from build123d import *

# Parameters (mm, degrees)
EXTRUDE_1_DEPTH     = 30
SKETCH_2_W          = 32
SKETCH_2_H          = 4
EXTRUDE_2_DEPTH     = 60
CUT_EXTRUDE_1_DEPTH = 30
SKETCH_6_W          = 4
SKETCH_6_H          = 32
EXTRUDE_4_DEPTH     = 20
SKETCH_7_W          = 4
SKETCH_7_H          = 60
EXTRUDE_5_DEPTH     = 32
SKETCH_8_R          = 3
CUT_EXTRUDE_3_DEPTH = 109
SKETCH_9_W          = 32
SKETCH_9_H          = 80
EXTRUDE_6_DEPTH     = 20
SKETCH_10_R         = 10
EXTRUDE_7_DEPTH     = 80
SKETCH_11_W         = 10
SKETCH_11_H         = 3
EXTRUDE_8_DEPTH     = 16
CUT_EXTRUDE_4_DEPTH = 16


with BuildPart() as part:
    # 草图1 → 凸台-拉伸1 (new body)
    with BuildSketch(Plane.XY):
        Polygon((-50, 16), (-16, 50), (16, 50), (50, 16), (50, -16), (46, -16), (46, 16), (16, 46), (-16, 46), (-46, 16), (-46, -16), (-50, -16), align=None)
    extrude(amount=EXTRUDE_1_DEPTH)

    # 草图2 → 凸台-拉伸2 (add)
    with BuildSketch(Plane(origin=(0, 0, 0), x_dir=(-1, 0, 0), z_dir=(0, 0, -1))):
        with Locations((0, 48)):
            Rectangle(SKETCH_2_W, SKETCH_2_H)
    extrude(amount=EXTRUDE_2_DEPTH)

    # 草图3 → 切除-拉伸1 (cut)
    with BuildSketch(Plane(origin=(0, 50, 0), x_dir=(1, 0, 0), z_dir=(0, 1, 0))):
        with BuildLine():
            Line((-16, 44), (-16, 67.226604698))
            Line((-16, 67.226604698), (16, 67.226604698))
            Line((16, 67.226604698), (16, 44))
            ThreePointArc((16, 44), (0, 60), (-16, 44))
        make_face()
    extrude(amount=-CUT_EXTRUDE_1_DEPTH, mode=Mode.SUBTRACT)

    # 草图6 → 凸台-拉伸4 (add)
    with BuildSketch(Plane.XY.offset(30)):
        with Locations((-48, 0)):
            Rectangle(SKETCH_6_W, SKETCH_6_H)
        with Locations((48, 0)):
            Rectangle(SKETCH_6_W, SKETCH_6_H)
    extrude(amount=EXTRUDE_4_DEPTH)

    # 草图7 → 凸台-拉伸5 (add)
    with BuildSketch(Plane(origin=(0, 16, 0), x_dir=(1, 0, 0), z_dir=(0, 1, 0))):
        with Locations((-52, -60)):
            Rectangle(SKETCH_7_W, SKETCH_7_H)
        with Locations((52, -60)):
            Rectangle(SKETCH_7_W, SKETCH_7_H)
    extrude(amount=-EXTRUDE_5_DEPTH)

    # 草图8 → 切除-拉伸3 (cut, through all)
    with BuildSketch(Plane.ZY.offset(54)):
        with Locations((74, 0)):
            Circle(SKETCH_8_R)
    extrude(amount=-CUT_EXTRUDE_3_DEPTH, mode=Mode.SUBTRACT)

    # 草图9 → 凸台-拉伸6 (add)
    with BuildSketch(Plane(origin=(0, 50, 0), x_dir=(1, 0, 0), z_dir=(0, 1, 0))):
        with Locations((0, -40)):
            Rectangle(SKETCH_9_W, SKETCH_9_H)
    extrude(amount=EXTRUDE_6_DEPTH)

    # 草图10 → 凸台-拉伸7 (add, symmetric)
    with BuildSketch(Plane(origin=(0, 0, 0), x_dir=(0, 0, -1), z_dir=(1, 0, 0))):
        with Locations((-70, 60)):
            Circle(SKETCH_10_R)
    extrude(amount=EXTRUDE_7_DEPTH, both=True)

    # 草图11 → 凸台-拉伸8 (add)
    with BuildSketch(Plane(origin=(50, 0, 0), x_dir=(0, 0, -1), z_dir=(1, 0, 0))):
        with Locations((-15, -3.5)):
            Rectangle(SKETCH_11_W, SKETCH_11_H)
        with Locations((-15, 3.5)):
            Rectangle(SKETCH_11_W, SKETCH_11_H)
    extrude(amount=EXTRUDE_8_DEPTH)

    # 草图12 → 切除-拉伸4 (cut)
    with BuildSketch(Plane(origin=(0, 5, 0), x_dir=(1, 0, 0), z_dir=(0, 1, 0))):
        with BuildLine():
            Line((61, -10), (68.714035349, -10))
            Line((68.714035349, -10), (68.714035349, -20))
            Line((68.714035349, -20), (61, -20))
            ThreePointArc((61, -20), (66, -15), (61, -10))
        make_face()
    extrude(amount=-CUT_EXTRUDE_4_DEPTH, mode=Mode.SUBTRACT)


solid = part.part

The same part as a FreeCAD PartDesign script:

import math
import FreeCAD as App
import Part
import Sketcher
from FreeCAD import Vector
Q = App.Units.Quantity

doc = App.newDocument("Part")
params = doc.addObject("Spreadsheet::Sheet", "Params")
for row, (alias, value) in enumerate([
    ("sketch1_width", "4 mm"),
    ("sketch1_width2", "32 mm"),
    ("pad1_length", "30 mm"),
    ("sketch2_width", "32 mm"),
    ("sketch2_height", "4 mm"),
    ("pad2_length", "60 mm"),
    ("sketch3_radius", "16 mm"),
    ("pocket1_length", "30 mm"),
    ("sketch4_width", "4 mm"),
    ("sketch4_height", "32 mm"),
    ("pad3_length", "20 mm"),
    ("sketch5_width", "4 mm"),
    ("sketch5_height", "60 mm"),
    ("pad4_length", "32 mm"),
    ("sketch6_diameter", "6 mm"),
    ("sketch7_width", "32 mm"),
    ("sketch7_height", "80 mm"),
    ("pad5_length", "20 mm"),
    ("sketch8_diameter", "20 mm"),
    ("pad6_length", "160 mm"),
    ("sketch9_width", "3 mm"),
    ("sketch9_height", "10 mm"),
    ("pad7_length", "16 mm"),
    ("sketch10_radius", "5 mm"),
    ("pocket3_length", "16 mm"),
], start=1):
    params.set(f"A{row}", alias)
    params.set(f"B{row}", "=" + value)
    params.setAlias(f"B{row}", alias)

body = doc.addObject("PartDesign::Body", "Body")

sketch1 = body.newObject("Sketcher::SketchObject", "Sketch")
sketch1.AttachmentSupport = (doc.getObject("XY_Plane"), [""])
sketch1.MapMode = "FlatFace"
sketch1.addGeometry([
    Part.LineSegment(Vector(-16, 50, 0), Vector(-50, 16, 0)),
    Part.LineSegment(Vector(-50, 16, 0), Vector(-50, -16, 0)),
    Part.LineSegment(Vector(-50, -16, 0), Vector(-46, -16, 0)),
    Part.LineSegment(Vector(-46, -16, 0), Vector(-46, 16, 0)),
    Part.LineSegment(Vector(-46, 16, 0), Vector(-16, 46, 0)),
    Part.LineSegment(Vector(-16, 46, 0), Vector(16, 46, 0)),
    Part.LineSegment(Vector(16, 46, 0), Vector(46, 16, 0)),
    Part.LineSegment(Vector(46, 16, 0), Vector(46, -16, 0)),
    Part.LineSegment(Vector(46, -16, 0), Vector(50, -16, 0)),
    Part.LineSegment(Vector(50, -16, 0), Vector(50, 16, 0)),
    Part.LineSegment(Vector(50, 16, 0), Vector(16, 50, 0)),
    Part.LineSegment(Vector(16, 50, 0), Vector(-16, 50, 0)),
], False)
sketch1.addConstraint([
    Sketcher.Constraint("Coincident", 0, 2, 1, 1),
    Sketcher.Constraint("Coincident", 1, 2, 2, 1),
    Sketcher.Constraint("Coincident", 2, 2, 3, 1),
    Sketcher.Constraint("Coincident", 3, 2, 4, 1),
    Sketcher.Constraint("Coincident", 4, 2, 5, 1),
    Sketcher.Constraint("Coincident", 5, 2, 6, 1),
    Sketcher.Constraint("Coincident", 6, 2, 7, 1),
    Sketcher.Constraint("Coincident", 7, 2, 8, 1),
    Sketcher.Constraint("Coincident", 8, 2, 9, 1),
    Sketcher.Constraint("Coincident", 9, 2, 10, 1),
    Sketcher.Constraint("Coincident", 10, 2, 11, 1),
    Sketcher.Constraint("Coincident", 11, 2, 0, 1),
    Sketcher.Constraint("Vertical", 1),
    Sketcher.Constraint("Horizontal", 2),
    Sketcher.Constraint("Vertical", 3),
    Sketcher.Constraint("Horizontal", 5),
    Sketcher.Constraint("Vertical", 7),
    Sketcher.Constraint("Horizontal", 8),
    Sketcher.Constraint("Vertical", 9),
    Sketcher.Constraint("Horizontal", 11),
    Sketcher.Constraint("Symmetric", 2, 2, 6, 2, -1, 1),
    Sketcher.Constraint("Symmetric", 0, 2, 8, 2, -1, 1),
    Sketcher.Constraint("Parallel", 0, 4),
    Sketcher.Constraint("Perpendicular", 4, 6),
    Sketcher.Constraint("Parallel", 6, 10),
    Sketcher.Constraint("Horizontal", 0, 2, 3, 2),
    Sketcher.Constraint("Horizontal", 3, 2, 6, 2),
    Sketcher.Constraint("Horizontal", 6, 2, 9, 2),
    Sketcher.Constraint("Vertical", 5, 2, 10, 2),
    Sketcher.Constraint("Vertical", 4, 2, 11, 2),
    Sketcher.Constraint("Equal", 11, 1),
    Sketcher.Constraint("DistanceX", 2, 1, 2, 2, Q("4 mm")),
    Sketcher.Constraint("DistanceX", 5, 1, 5, 2, Q("32 mm")),
    Sketcher.Constraint("DistanceX", 0, 2, -1, 1, Q("50 mm")),
])
sketch1.setExpression("Constraints[31]", "Params.sketch1_width")
sketch1.setExpression("Constraints[32]", "Params.sketch1_width2")
pad1 = body.newObject("PartDesign::Pad", "Pad")
pad1.Profile = sketch1
pad1.setExpression("Length", "Params.pad1_length")

sketch2 = body.newObject("Sketcher::SketchObject", "Sketch001")
sketch2.AttachmentSupport = (doc.getObject("XY_Plane"), [""])
sketch2.MapMode = "FlatFace"
sketch2.addGeometry([
    Part.LineSegment(Vector(16, 50, 0), Vector(16, 46, 0)),
    Part.LineSegment(Vector(16, 46, 0), Vector(-16, 46, 0)),
    Part.LineSegment(Vector(-16, 46, 0), Vector(-16, 50, 0)),
    Part.LineSegment(Vector(-16, 50, 0), Vector(16, 50, 0)),
], False)
sketch2.addConstraint([
    Sketcher.Constraint("Coincident", 0, 2, 1, 1),
    Sketcher.Constraint("Coincident", 1, 2, 2, 1),
    Sketcher.Constraint("Coincident", 2, 2, 3, 1),
    Sketcher.Constraint("Coincident", 3, 2, 0, 1),
    Sketcher.Constraint("Vertical", 0),
    Sketcher.Constraint("Horizontal", 1),
    Sketcher.Constraint("Vertical", 2),
    Sketcher.Constraint("Horizontal", 3),
    Sketcher.Constraint("DistanceX", 1, 2, 1, 1, Q("32 mm")),
    Sketcher.Constraint("DistanceY", 0, 2, 0, 1, Q("4 mm")),
    Sketcher.Constraint("DistanceX", -1, 1, 0, 2, Q("16 mm")),
    Sketcher.Constraint("DistanceY", -1, 1, 0, 2, Q("46 mm")),
])
sketch2.setExpression("Constraints[8]", "Params.sketch2_width")
sketch2.setExpression("Constraints[9]", "Params.sketch2_height")
pad2 = body.newObject("PartDesign::Pad", "Pad001")
pad2.Profile = sketch2
pad2.setExpression("Length", "Params.pad2_length")
pad2.Reversed = True

sketch3 = body.newObject("Sketcher::SketchObject", "Sketch002")
sketch3.AttachmentSupport = (doc.getObject("XZ_Plane"), [""])
sketch3.MapMode = "FlatFace"
sketch3.AttachmentOffset = App.Placement(Vector(0, 0, -50), App.Rotation())
sketch3.addGeometry([
    Part.LineSegment(Vector(-16, -67, 0), Vector(-16, -44, 0)),
    Part.ArcOfCircle(Part.Circle(Vector(0, -44, 0), Vector(0, 0, 1), 16), math.radians(180), math.radians(360)),
    Part.LineSegment(Vector(16, -44, 0), Vector(16, -67, 0)),
    Part.LineSegment(Vector(16, -67, 0), Vector(-16, -67, 0)),
], False)
sketch3.addConstraint([
    Sketcher.Constraint("Tangent", 0, 2, 1, 1),
    Sketcher.Constraint("Tangent", 1, 2, 2, 1),
    Sketcher.Constraint("Coincident", 2, 2, 3, 1),
    Sketcher.Constraint("Coincident", 3, 2, 0, 1),
    Sketcher.Constraint("Vertical", 0),
    Sketcher.Constraint("Vertical", 2),
    Sketcher.Constraint("Horizontal", 3),
    Sketcher.Constraint("PointOnObject", 1, 3, -2),
    Sketcher.Constraint("Radius", 1, Q("16 mm")),
    Sketcher.Constraint("DistanceY", 1, 3, -1, 1, Q("44 mm")),
    Sketcher.Constraint("DistanceY", 0, 1, 0, 2, Q("23.226605 mm")),
])
sketch3.setExpression("Constraints[8]", "Params.sketch3_radius")
pocket1 = body.newObject("PartDesign::Pocket", "Pocket")
pocket1.Profile = sketch3
pocket1.setExpression("Length", "Params.pocket1_length")
pocket1.Reversed = True

sketch4 = body.newObject("Sketcher::SketchObject", "Sketch003")
sketch4.AttachmentSupport = (doc.getObject("XY_Plane"), [""])
sketch4.MapMode = "FlatFace"
sketch4.AttachmentOffset = App.Placement(Vector(0, 0, 30), App.Rotation())
sketch4.addGeometry([
    Part.LineSegment(Vector(-50, 16, 0), Vector(-50, -16, 0)),
    Part.LineSegment(Vector(-50, -16, 0), Vector(-46, -16, 0)),
    Part.LineSegment(Vector(-46, -16, 0), Vector(-46, 16, 0)),
    Part.LineSegment(Vector(-46, 16, 0), Vector(-50, 16, 0)),
    Part.LineSegment(Vector(46, 16, 0), Vector(46, -16, 0)),
    Part.LineSegment(Vector(46, -16, 0), Vector(50, -16, 0)),
    Part.LineSegment(Vector(50, -16, 0), Vector(50, 16, 0)),
    Part.LineSegment(Vector(50, 16, 0), Vector(46, 16, 0)),
], False)
sketch4.addConstraint([
    Sketcher.Constraint("Coincident", 0, 2, 1, 1),
    Sketcher.Constraint("Coincident", 1, 2, 2, 1),
    Sketcher.Constraint("Coincident", 2, 2, 3, 1),
    Sketcher.Constraint("Coincident", 3, 2, 0, 1),
    Sketcher.Constraint("Coincident", 4, 2, 5, 1),
    Sketcher.Constraint("Coincident", 5, 2, 6, 1),
    Sketcher.Constraint("Coincident", 6, 2, 7, 1),
    Sketcher.Constraint("Coincident", 7, 2, 4, 1),
    Sketcher.Constraint("Vertical", 0),
    Sketcher.Constraint("Horizontal", 1),
    Sketcher.Constraint("Vertical", 2),
    Sketcher.Constraint("Horizontal", 3),
    Sketcher.Constraint("Vertical", 4),
    Sketcher.Constraint("Horizontal", 5),
    Sketcher.Constraint("Vertical", 6),
    Sketcher.Constraint("Horizontal", 7),
    Sketcher.Constraint("Symmetric", 2, 2, 4, 2, -1, 1),
    Sketcher.Constraint("Symmetric", 0, 2, 6, 2, -1, 1),
    Sketcher.Constraint("Horizontal", 1, 2, 4, 2),
    Sketcher.Constraint("DistanceX", 1, 1, 1, 2, Q("4 mm")),
    Sketcher.Constraint("DistanceY", 0, 2, 0, 1, Q("32 mm")),
    Sketcher.Constraint("DistanceX", 0, 2, -1, 1, Q("50 mm")),
])
sketch4.setExpression("Constraints[19]", "Params.sketch4_width")
sketch4.setExpression("Constraints[20]", "Params.sketch4_height")
pad3 = body.newObject("PartDesign::Pad", "Pad002")
pad3.Profile = sketch4
pad3.setExpression("Length", "Params.pad3_length")

sketch5 = body.newObject("Sketcher::SketchObject", "Sketch004")
sketch5.AttachmentSupport = (doc.getObject("XZ_Plane"), [""])
sketch5.MapMode = "FlatFace"
sketch5.AttachmentOffset = App.Placement(Vector(0, 0, -16), App.Rotation())
sketch5.addGeometry([
    Part.LineSegment(Vector(-54, 30, 0), Vector(-54, 90, 0)),
    Part.LineSegment(Vector(-54, 90, 0), Vector(-50, 90, 0)),
    Part.LineSegment(Vector(-50, 90, 0), Vector(-50, 30, 0)),
    Part.LineSegment(Vector(-50, 30, 0), Vector(-54, 30, 0)),
    Part.LineSegment(Vector(50, 30, 0), Vector(50, 90, 0)),
    Part.LineSegment(Vector(50, 90, 0), Vector(54, 90, 0)),
    Part.LineSegment(Vector(54, 90, 0), Vector(54, 30, 0)),
    Part.LineSegment(Vector(54, 30, 0), Vector(50, 30, 0)),
], False)
sketch5.addConstraint([
    Sketcher.Constraint("Coincident", 0, 2, 1, 1),
    Sketcher.Constraint("Coincident", 1, 2, 2, 1),
    Sketcher.Constraint("Coincident", 2, 2, 3, 1),
    Sketcher.Constraint("Coincident", 3, 2, 0, 1),
    Sketcher.Constraint("Coincident", 4, 2, 5, 1),
    Sketcher.Constraint("Coincident", 5, 2, 6, 1),
    Sketcher.Constraint("Coincident", 6, 2, 7, 1),
    Sketcher.Constraint("Coincident", 7, 2, 4, 1),
    Sketcher.Constraint("Vertical", 0),
    Sketcher.Constraint("Horizontal", 1),
    Sketcher.Constraint("Vertical", 2),
    Sketcher.Constraint("Horizontal", 3),
    Sketcher.Constraint("Vertical", 4),
    Sketcher.Constraint("Horizontal", 5),
    Sketcher.Constraint("Vertical", 6),
    Sketcher.Constraint("Horizontal", 7),
    Sketcher.Constraint("Symmetric", 1, 2, 4, 2, -2),
    Sketcher.Constraint("Symmetric", 3, 2, 6, 2, -2),
    Sketcher.Constraint("DistanceX", 1, 1, 1, 2, Q("4 mm")),
    Sketcher.Constraint("DistanceY", 0, 1, 0, 2, Q("60 mm")),
    Sketcher.Constraint("DistanceX", 0, 2, -1, 1, Q("54 mm")),
    Sketcher.Constraint("DistanceY", -1, 1, 0, 2, Q("90 mm")),
])
sketch5.setExpression("Constraints[18]", "Params.sketch5_width")
sketch5.setExpression("Constraints[19]", "Params.sketch5_height")
pad4 = body.newObject("PartDesign::Pad", "Pad003")
pad4.Profile = sketch5
pad4.setExpression("Length", "Params.pad4_length")

sketch6 = body.newObject("Sketcher::SketchObject", "Sketch005")
sketch6.AttachmentSupport = (doc.getObject("YZ_Plane"), [""])
sketch6.MapMode = "FlatFace"
sketch6.AttachmentOffset = App.Placement(Vector(0, 0, -54), App.Rotation())
sketch6.addGeometry(Part.Circle(Vector(0, 74, 0), Vector(0, 0, 1), 3), False)
sketch6.addConstraint([
    Sketcher.Constraint("PointOnObject", 0, 3, -2),
    Sketcher.Constraint("Diameter", 0, Q("6 mm")),
    Sketcher.Constraint("DistanceY", -1, 1, 0, 3, Q("74 mm")),
])
sketch6.setExpression("Constraints[1]", "Params.sketch6_diameter")
pocket2 = body.newObject("PartDesign::Pocket", "Pocket001")
pocket2.Profile = sketch6
pocket2.Type = "ThroughAll"
pocket2.Reversed = True

sketch7 = body.newObject("Sketcher::SketchObject", "Sketch006")
sketch7.AttachmentSupport = (doc.getObject("XZ_Plane"), [""])
sketch7.MapMode = "FlatFace"
sketch7.AttachmentOffset = App.Placement(Vector(0, 0, -50), App.Rotation())
sketch7.addGeometry([
    Part.LineSegment(Vector(-16, 0, 0), Vector(-16, 80, 0)),
    Part.LineSegment(Vector(-16, 80, 0), Vector(16, 80, 0)),
    Part.LineSegment(Vector(16, 80, 0), Vector(16, 0, 0)),
    Part.LineSegment(Vector(16, 0, 0), Vector(-16, 0, 0)),
], False)
sketch7.addConstraint([
    Sketcher.Constraint("Coincident", 0, 2, 1, 1),
    Sketcher.Constraint("Coincident", 1, 2, 2, 1),
    Sketcher.Constraint("Coincident", 2, 2, 3, 1),
    Sketcher.Constraint("Coincident", 3, 2, 0, 1),
    Sketcher.Constraint("Vertical", 0),
    Sketcher.Constraint("Horizontal", 1),
    Sketcher.Constraint("Vertical", 2),
    Sketcher.Constraint("Horizontal", 3),
    Sketcher.Constraint("Symmetric", 2, 2, 3, 2, -1, 1),
    Sketcher.Constraint("DistanceX", 1, 1, 1, 2, Q("32 mm")),
    Sketcher.Constraint("DistanceY", 0, 1, 0, 2, Q("80 mm")),
])
sketch7.setExpression("Constraints[9]", "Params.sketch7_width")
sketch7.setExpression("Constraints[10]", "Params.sketch7_height")
pad5 = body.newObject("PartDesign::Pad", "Pad004")
pad5.Profile = sketch7
pad5.setExpression("Length", "Params.pad5_length")
pad5.Reversed = True

sketch8 = body.newObject("Sketcher::SketchObject", "Sketch007")
sketch8.AttachmentSupport = (doc.getObject("YZ_Plane"), [""])
sketch8.MapMode = "FlatFace"
sketch8.addGeometry(Part.Circle(Vector(60, 70, 0), Vector(0, 0, 1), 10), False)
sketch8.addConstraint([
    Sketcher.Constraint("Diameter", 0, Q("20 mm")),
    Sketcher.Constraint("DistanceX", -1, 1, 0, 3, Q("60 mm")),
    Sketcher.Constraint("DistanceY", -1, 1, 0, 3, Q("70 mm")),
])
sketch8.setExpression("Constraints[0]", "Params.sketch8_diameter")
pad6 = body.newObject("PartDesign::Pad", "Pad005")
pad6.Profile = sketch8
pad6.setExpression("Length", "Params.pad6_length")
pad6.Midplane = True

sketch9 = body.newObject("Sketcher::SketchObject", "Sketch008")
sketch9.AttachmentSupport = (doc.getObject("YZ_Plane"), [""])
sketch9.MapMode = "FlatFace"
sketch9.AttachmentOffset = App.Placement(Vector(0, 0, 50), App.Rotation())
sketch9.addGeometry([
    Part.LineSegment(Vector(-2, 20, 0), Vector(-5, 20, 0)),
    Part.LineSegment(Vector(-5, 20, 0), Vector(-5, 10, 0)),
    Part.LineSegment(Vector(-5, 10, 0), Vector(-2, 10, 0)),
    Part.LineSegment(Vector(-2, 10, 0), Vector(-2, 20, 0)),
    Part.LineSegment(Vector(5, 20, 0), Vector(2, 20, 0)),
    Part.LineSegment(Vector(2, 20, 0), Vector(2, 10, 0)),
    Part.LineSegment(Vector(2, 10, 0), Vector(5, 10, 0)),
    Part.LineSegment(Vector(5, 10, 0), Vector(5, 20, 0)),
], False)
sketch9.addConstraint([
    Sketcher.Constraint("Coincident", 0, 2, 1, 1),
    Sketcher.Constraint("Coincident", 1, 2, 2, 1),
    Sketcher.Constraint("Coincident", 2, 2, 3, 1),
    Sketcher.Constraint("Coincident", 3, 2, 0, 1),
    Sketcher.Constraint("Coincident", 4, 2, 5, 1),
    Sketcher.Constraint("Coincident", 5, 2, 6, 1),
    Sketcher.Constraint("Coincident", 6, 2, 7, 1),
    Sketcher.Constraint("Coincident", 7, 2, 4, 1),
    Sketcher.Constraint("Horizontal", 0),
    Sketcher.Constraint("Vertical", 1),
    Sketcher.Constraint("Horizontal", 2),
    Sketcher.Constraint("Vertical", 3),
    Sketcher.Constraint("Horizontal", 4),
    Sketcher.Constraint("Vertical", 5),
    Sketcher.Constraint("Horizontal", 6),
    Sketcher.Constraint("Vertical", 7),
    Sketcher.Constraint("Symmetric", 3, 2, 4, 2, -2),
    Sketcher.Constraint("Symmetric", 1, 2, 6, 2, -2),
    Sketcher.Constraint("DistanceX", 0, 2, 0, 1, Q("3 mm")),
    Sketcher.Constraint("DistanceY", 1, 2, 1, 1, Q("10 mm")),
    Sketcher.Constraint("DistanceX", 0, 2, -1, 1, Q("5 mm")),
    Sketcher.Constraint("DistanceY", -1, 1, 0, 2, Q("20 mm")),
])
sketch9.setExpression("Constraints[18]", "Params.sketch9_width")
sketch9.setExpression("Constraints[19]", "Params.sketch9_height")
pad7 = body.newObject("PartDesign::Pad", "Pad006")
pad7.Profile = sketch9
pad7.setExpression("Length", "Params.pad7_length")

sketch10 = body.newObject("Sketcher::SketchObject", "Sketch009")
sketch10.AttachmentSupport = (doc.getObject("XZ_Plane"), [""])
sketch10.MapMode = "FlatFace"
sketch10.AttachmentOffset = App.Placement(Vector(0, 0, -5), App.Rotation())
sketch10.addGeometry([
    Part.LineSegment(Vector(69, 10, 0), Vector(61, 10, 0)),
    Part.ArcOfCircle(Part.Circle(Vector(61, 15, 0), Vector(0, 0, 1), 5), math.radians(-90), math.radians(90)),
    Part.LineSegment(Vector(61, 20, 0), Vector(69, 20, 0)),
    Part.LineSegment(Vector(69, 20, 0), Vector(69, 10, 0)),
], False)
sketch10.addConstraint([
    Sketcher.Constraint("Tangent", 0, 2, 1, 1),
    Sketcher.Constraint("Tangent", 1, 2, 2, 1),
    Sketcher.Constraint("Coincident", 2, 2, 3, 1),
    Sketcher.Constraint("Coincident", 3, 2, 0, 1),
    Sketcher.Constraint("Horizontal", 0),
    Sketcher.Constraint("Horizontal", 2),
    Sketcher.Constraint("Vertical", 3),
    Sketcher.Constraint("Radius", 1, Q("5 mm")),
    Sketcher.Constraint("DistanceX", -1, 1, 1, 3, Q("61 mm")),
    Sketcher.Constraint("DistanceY", -1, 1, 1, 3, Q("15 mm")),
    Sketcher.Constraint("DistanceX", 0, 2, 0, 1, Q("7.714035 mm")),
])
sketch10.setExpression("Constraints[7]", "Params.sketch10_radius")
pocket3 = body.newObject("PartDesign::Pocket", "Pocket002")
pocket3.Profile = sketch10
pocket3.setExpression("Length", "Params.pocket3_length")
pocket3.Reversed = True

doc.recompute()
